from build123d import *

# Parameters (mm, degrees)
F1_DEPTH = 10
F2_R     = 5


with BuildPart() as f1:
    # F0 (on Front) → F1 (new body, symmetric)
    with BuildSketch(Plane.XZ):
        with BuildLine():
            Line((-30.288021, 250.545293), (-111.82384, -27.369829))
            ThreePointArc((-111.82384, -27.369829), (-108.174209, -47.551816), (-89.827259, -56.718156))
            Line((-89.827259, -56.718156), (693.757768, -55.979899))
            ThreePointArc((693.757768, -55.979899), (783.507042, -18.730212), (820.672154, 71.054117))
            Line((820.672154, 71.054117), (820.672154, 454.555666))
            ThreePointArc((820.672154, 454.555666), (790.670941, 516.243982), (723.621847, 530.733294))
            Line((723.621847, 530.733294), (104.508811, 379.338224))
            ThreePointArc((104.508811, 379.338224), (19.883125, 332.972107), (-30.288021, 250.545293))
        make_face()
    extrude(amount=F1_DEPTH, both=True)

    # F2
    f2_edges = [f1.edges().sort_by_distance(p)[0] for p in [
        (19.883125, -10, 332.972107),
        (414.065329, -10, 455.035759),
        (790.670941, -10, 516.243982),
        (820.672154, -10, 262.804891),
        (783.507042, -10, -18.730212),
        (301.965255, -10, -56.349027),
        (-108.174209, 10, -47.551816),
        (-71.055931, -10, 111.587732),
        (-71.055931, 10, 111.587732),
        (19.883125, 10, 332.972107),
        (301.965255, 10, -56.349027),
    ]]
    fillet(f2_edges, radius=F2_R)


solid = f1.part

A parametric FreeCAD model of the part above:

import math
import FreeCAD as App
import Part
import Sketcher


def edges_at(feature, points):
    """Names of the edges that pass closest to the given points."""
    edges = feature.Shape.Edges
    near = lambda p: min(range(len(edges)), key=lambda i: edges[i].distToShape(Part.Vertex(*p))[0])
    return sorted({f"Edge{near(p) + 1}" for p in points})

doc = App.newDocument("Part")
body = doc.addObject("PartDesign::Body", "Body")

# Sketch on XZ plane
sketch1 = body.newObject("Sketcher::SketchObject", "Sketch")
sketch1.AttachmentSupport = (doc.getObject("XZ_Plane"), [""])
sketch1.MapMode = "FlatFace"
sketch1.addGeometry([
    Part.LineSegment(App.Vector(-30, 251, 0), App.Vector(-112, -27, 0)),  # 0
    Part.ArcOfCircle(Part.Circle(App.Vector(-90, -34, 0), App.Vector(0, 0, 1), 23), math.radians(164), math.radians(270)),  # 1
    Part.LineSegment(App.Vector(-90, -57, 0), App.Vector(694, -56, 0)),  # 2
    Part.ArcOfCircle(Part.Circle(App.Vector(694, 71, 0), App.Vector(0, 0, 1), 127), math.radians(-90), math.radians(0)),  # 3
    Part.LineSegment(App.Vector(821, 71, 0), App.Vector(821, 455, 0)),  # 4
    Part.ArcOfCircle(Part.Circle(App.Vector(742, 455, 0), App.Vector(0, 0, 1), 78), math.radians(0), math.radians(104)),  # 5
    Part.LineSegment(App.Vector(724, 531, 0), App.Vector(105, 379, 0)),  # 6
    Part.ArcOfCircle(Part.Circle(App.Vector(149, 198, 0), App.Vector(0, 0, 1), 187), math.radians(104), math.radians(164)),  # 7
], False)
sketch1.addConstraint([
    Sketcher.Constraint("Tangent", 0, 2, 1, 1),
    Sketcher.Constraint("Tangent", 1, 2, 2, 1),
    Sketcher.Constraint("Tangent", 2, 2, 3, 1),
    Sketcher.Constraint("Tangent", 3, 2, 4, 1),
    Sketcher.Constraint("Tangent", 4, 2, 5, 1),
    Sketcher.Constraint("Tangent", 5, 2, 6, 1),
    Sketcher.Constraint("Tangent", 6, 2, 7, 1),
    Sketcher.Constraint("Tangent", 7, 2, 0, 1),
    Sketcher.Constraint("Vertical", 4),
    Sketcher.Constraint("Radius", 3, 127.03407),
    Sketcher.Constraint("Radius", 1, 22.901224),
    Sketcher.Constraint("Radius", 5, 78.422178),
    Sketcher.Constraint("Radius", 7, 186.694196),
    Sketcher.Constraint("DistanceY", 4, 1, 4, 2, 383.501549),
    Sketcher.Constraint("DistanceY", 2, 2, -1, 1, 55.979899),
    Sketcher.Constraint("Distance", 0, 289.628909),
    Sketcher.Constraint("DistanceY", 1, 3, -1, 1, 33.816942),
    Sketcher.Constraint("DistanceX", 0, 2, -1, 1, 111.82384),
    Sketcher.Constraint("DistanceY", 0, 2, -1, 1, 27.369829),
    Sketcher.Constraint("DistanceX", -1, 1, 2, 2, 693.757768),
])
pad1 = body.newObject("PartDesign::Pad", "Pad")
pad1.Profile = sketch1
pad1.Length = 20
pad1.Midplane = True
doc.recompute()

fillet = body.newObject("PartDesign::Fillet", "Fillet")
fillet.Base = (pad1, edges_at(pad1, [
    (19.883, -10, 332.972),
    (414.065, -10, 455.036),
    (790.671, -10, 516.244),
    (820.672, -10, 262.805),
    (783.507, -10, -18.73),
    (301.965, -10, -56.349),
    (-108.174, 10, -47.552),
    (-71.056, -10, 111.588),
    (-71.056, 10, 111.588),
    (19.883, 10, 332.972),
    (301.965, 10, -56.349),
]))
fillet.Radius = 5

doc.recompute()
